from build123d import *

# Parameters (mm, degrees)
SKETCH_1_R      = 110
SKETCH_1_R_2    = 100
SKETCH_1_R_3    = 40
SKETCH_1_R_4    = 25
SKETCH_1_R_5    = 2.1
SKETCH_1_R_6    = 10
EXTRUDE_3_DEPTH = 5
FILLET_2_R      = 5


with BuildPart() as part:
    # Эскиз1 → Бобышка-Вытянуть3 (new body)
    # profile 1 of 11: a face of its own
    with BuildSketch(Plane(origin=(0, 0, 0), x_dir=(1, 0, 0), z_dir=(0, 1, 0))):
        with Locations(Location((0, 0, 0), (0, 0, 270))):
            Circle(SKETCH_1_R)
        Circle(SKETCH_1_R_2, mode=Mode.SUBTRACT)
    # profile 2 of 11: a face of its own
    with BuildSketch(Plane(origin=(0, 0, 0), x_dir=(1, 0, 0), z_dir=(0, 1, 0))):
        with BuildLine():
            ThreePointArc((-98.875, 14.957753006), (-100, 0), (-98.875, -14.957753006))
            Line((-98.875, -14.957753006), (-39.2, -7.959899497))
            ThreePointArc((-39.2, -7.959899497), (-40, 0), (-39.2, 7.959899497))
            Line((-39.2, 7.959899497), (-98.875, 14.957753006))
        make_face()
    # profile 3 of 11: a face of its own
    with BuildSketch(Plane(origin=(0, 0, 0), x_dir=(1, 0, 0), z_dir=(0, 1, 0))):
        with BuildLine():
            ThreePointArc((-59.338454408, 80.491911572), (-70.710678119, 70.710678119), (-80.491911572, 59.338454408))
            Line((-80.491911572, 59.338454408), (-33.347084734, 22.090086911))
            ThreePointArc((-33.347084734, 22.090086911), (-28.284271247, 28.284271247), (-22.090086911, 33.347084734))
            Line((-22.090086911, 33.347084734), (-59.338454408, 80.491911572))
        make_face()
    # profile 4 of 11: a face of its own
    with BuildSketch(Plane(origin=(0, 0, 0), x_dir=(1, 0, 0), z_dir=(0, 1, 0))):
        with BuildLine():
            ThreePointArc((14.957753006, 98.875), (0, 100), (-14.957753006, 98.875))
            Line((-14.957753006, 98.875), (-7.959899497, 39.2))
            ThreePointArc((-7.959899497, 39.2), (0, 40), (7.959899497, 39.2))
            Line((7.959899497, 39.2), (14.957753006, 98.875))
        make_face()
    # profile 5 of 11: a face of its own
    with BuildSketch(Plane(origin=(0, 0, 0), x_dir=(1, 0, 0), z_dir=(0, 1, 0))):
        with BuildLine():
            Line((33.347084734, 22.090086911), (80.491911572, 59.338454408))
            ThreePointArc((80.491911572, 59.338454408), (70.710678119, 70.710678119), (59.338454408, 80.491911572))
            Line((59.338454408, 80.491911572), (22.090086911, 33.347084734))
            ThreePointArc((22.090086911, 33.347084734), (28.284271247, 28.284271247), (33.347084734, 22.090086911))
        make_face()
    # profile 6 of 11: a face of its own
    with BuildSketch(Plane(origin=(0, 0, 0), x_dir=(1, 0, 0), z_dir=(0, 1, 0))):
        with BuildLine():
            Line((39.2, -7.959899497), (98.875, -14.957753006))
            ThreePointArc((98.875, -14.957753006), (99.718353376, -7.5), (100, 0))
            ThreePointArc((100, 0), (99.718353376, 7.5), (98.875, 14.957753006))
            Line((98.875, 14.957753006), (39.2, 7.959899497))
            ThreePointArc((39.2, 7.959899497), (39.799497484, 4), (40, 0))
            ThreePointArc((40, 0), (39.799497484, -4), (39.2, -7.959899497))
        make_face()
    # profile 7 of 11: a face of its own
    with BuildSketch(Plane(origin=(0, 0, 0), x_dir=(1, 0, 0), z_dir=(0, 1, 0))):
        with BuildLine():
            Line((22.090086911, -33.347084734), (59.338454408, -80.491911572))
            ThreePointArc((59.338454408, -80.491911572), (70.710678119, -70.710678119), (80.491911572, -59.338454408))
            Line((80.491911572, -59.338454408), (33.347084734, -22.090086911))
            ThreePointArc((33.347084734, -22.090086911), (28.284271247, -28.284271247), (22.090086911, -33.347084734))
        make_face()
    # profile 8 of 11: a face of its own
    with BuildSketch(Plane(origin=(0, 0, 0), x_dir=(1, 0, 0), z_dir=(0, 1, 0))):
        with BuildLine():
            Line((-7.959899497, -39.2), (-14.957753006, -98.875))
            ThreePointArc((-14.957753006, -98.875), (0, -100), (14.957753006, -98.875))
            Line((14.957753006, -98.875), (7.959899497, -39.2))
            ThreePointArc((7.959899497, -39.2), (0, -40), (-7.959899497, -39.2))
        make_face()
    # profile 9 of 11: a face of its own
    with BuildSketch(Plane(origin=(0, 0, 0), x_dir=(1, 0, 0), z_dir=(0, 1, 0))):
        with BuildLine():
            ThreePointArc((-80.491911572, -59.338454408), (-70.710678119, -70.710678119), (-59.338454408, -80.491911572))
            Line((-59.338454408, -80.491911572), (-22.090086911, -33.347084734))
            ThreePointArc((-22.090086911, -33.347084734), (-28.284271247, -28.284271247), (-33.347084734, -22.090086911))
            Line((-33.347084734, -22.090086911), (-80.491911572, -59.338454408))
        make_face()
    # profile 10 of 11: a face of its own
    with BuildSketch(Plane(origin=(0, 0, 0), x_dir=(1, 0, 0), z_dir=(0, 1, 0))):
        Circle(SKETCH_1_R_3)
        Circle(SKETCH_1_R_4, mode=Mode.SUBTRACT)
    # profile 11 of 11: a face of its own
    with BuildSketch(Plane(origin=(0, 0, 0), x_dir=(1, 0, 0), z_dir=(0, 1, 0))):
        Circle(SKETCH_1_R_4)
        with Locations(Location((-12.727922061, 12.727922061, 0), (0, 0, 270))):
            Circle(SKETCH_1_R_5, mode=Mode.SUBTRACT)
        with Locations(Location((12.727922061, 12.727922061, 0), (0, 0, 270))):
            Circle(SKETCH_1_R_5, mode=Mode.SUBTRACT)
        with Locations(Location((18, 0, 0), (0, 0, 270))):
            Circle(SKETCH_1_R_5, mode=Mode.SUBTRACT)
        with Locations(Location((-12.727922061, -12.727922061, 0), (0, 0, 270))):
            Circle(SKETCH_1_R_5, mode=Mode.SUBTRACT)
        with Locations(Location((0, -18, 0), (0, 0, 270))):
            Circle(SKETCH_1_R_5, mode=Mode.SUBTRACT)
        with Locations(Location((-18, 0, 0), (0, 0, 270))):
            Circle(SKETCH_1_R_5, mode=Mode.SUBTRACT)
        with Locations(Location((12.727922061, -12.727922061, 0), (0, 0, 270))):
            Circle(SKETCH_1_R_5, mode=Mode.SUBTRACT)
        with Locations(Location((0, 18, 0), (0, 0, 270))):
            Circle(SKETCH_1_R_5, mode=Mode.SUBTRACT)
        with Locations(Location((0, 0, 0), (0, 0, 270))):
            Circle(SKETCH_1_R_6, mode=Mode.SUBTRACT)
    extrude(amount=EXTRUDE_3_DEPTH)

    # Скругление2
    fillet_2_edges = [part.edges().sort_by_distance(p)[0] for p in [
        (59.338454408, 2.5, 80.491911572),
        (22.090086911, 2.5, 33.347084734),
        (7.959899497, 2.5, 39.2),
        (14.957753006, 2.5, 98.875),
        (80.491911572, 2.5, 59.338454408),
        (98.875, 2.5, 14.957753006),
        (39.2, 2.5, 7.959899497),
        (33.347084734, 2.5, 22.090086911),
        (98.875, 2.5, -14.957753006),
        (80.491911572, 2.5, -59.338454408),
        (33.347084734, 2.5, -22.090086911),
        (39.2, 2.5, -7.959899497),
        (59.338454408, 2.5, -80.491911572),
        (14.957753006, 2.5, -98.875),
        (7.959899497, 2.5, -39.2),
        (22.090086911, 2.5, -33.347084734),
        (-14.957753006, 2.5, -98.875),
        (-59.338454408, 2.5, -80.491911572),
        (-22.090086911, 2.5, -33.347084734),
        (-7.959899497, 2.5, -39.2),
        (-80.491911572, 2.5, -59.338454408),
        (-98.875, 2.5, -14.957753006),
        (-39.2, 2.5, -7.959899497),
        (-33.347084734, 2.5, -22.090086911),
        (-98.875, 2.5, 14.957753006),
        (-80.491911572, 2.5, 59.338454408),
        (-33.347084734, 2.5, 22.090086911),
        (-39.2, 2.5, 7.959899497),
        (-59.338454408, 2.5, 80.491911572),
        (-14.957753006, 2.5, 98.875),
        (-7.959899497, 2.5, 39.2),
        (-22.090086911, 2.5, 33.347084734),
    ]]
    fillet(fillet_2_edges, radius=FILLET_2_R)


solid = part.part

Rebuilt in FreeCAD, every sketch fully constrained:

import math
import FreeCAD as App
import Part
import Sketcher
from FreeCAD import Vector


def edges_at(feature, points):
    """Names of the edges that pass closest to the given points."""
    edges = feature.Shape.Edges
    near = lambda p: min(range(len(edges)), key=lambda i: edges[i].distToShape(Part.Vertex(*p))[0])
    return sorted({f"Edge{near(p) + 1}" for p in points})

doc = App.newDocument("Part")
body = doc.addObject("PartDesign::Body", "Body")

sketch1 = body.newObject("Sketcher::SketchObject", "Sketch")
sketch1.AttachmentSupport = (doc.getObject("XZ_Plane"), [""])
sketch1.MapMode = "FlatFace"
sketch1.addGeometry([
    Part.Circle(Vector(0, 0, 0), Vector(0, 0, 1), 110),
    Part.ArcOfCircle(Part.Circle(Vector(0, 0, 0), Vector(0, 0, 1), 100), math.radians(-36), math.radians(-9)),
    Part.LineSegment(Vector(98.9, -15, 0), Vector(39.2, -8, 0)),
    Part.ArcOfCircle(Part.Circle(Vector(0, 0, 0), Vector(0, 0, 1), 40), math.radians(-34), math.radians(-11)),
    Part.LineSegment(Vector(33.3, -22.1, 0), Vector(80.5, -59.3, 0)),
    Part.ArcOfCircle(Part.Circle(Vector(0, 0, 0), Vector(0, 0, 1), 100), math.radians(-81), math.radians(-54)),
    Part.LineSegment(Vector(59.3, -80.5, 0), Vector(22.1, -33.3, 0)),
    Part.ArcOfCircle(Part.Circle(Vector(0, 0, 0), Vector(0, 0, 1), 40), math.radians(-79), math.radians(-56)),
    Part.LineSegment(Vector(8, -39.2, 0), Vector(15, -98.9, 0)),
    Part.ArcOfCircle(Part.Circle(Vector(0, 0, 0), Vector(0, 0, 1), 100), math.radians(-126), math.radians(-99)),
    Part.LineSegment(Vector(-15, -98.9, 0), Vector(-8, -39.2, 0)),
    Part.ArcOfCircle(Part.Circle(Vector(0, 0, 0), Vector(0, 0, 1), 40), math.radians(-124), math.radians(-101)),
    Part.LineSegment(Vector(-22.1, -33.3, 0), Vector(-59.3, -80.5, 0)),
    Part.ArcOfCircle(Part.Circle(Vector(0, 0, 0), Vector(0, 0, 1), 100), math.radians(-171), math.radians(-144)),
    Part.LineSegment(Vector(-80.5, -59.3, 0), Vector(-33.3, -22.1, 0)),
    Part.ArcOfCircle(Part.Circle(Vector(0, 0, 0), Vector(0, 0, 1), 40), math.radians(-169), math.radians(-146)),
    Part.LineSegment(Vector(-39.2, -8, 0), Vector(-98.9, -15, 0)),
    Part.ArcOfCircle(Part.Circle(Vector(0, 0, 0), Vector(0, 0, 1), 100), math.radians(144), math.radians(171)),
    Part.LineSegment(Vector(-98.9, 15, 0), Vector(-39.2, 8, 0)),
    Part.ArcOfCircle(Part.Circle(Vector(0, 0, 0), Vector(0, 0, 1), 40), math.radians(146), math.radians(169)),
    Part.LineSegment(Vector(-33.3, 22.1, 0), Vector(-80.5, 59.3, 0)),
    Part.ArcOfCircle(Part.Circle(Vector(0, 0, 0), Vector(0, 0, 1), 100), math.radians(99), math.radians(126)),
    Part.LineSegment(Vector(-59.3, 80.5, 0), Vector(-22.1, 33.3, 0)),
    Part.ArcOfCircle(Part.Circle(Vector(0, 0, 0), Vector(0, 0, 1), 40), math.radians(101), math.radians(124)),
    Part.LineSegment(Vector(-8, 39.2, 0), Vector(-15, 98.9, 0)),
    Part.ArcOfCircle(Part.Circle(Vector(0, 0, 0), Vector(0, 0, 1), 100), math.radians(54), math.radians(81)),
    Part.LineSegment(Vector(15, 98.9, 0), Vector(8, 39.2, 0)),
    Part.ArcOfCircle(Part.Circle(Vector(0, 0, 0), Vector(0, 0, 1), 40), math.radians(56), math.radians(79)),
    Part.LineSegment(Vector(22.1, 33.3, 0), Vector(59.3, 80.5, 0)),
    Part.ArcOfCircle(Part.Circle(Vector(0, 0, 0), Vector(0, 0, 1), 100), math.radians(9), math.radians(36)),
    Part.LineSegment(Vector(80.5, 59.3, 0), Vector(33.3, 22.1, 0)),
    Part.ArcOfCircle(Part.Circle(Vector(0, 0, 0), Vector(0, 0, 1), 40), math.radians(11), math.radians(34)),
    Part.LineSegment(Vector(39.2, 8, 0), Vector(98.9, 15, 0)),
    Part.Circle(Vector(12.7, -12.7, 0), Vector(0, 0, 1), 2.1),
    Part.Circle(Vector(-12.7, 12.7, 0), Vector(0, 0, 1), 2.1),
    Part.Circle(Vector(0, 18, 0), Vector(0, 0, 1), 2.1),
    Part.Circle(Vector(12.7, 12.7, 0), Vector(0, 0, 1), 2.1),
    Part.Circle(Vector(-18, 0, 0), Vector(0, 0, 1), 2.1),
    Part.Circle(Vector(-12.7, -12.7, 0), Vector(0, 0, 1), 2.1),
    Part.Circle(Vector(0, 0, 0), Vector(0, 0, 1), 10),
    Part.Circle(Vector(18, 0, 0), Vector(0, 0, 1), 2.1),
    Part.Circle(Vector(0, -18, 0), Vector(0, 0, 1), 2.1),
], False)
sketch1.addConstraint([
    Sketcher.Constraint("Coincident", 1, 2, 2, 1),
    Sketcher.Constraint("Coincident", 2, 2, 3, 2),
    Sketcher.Constraint("Coincident", 3, 1, 4, 1),
    Sketcher.Constraint("Coincident", 4, 2, 1, 1),
    Sketcher.Constraint("Coincident", 5, 2, 6, 1),
    Sketcher.Constraint("Coincident", 6, 2, 7, 2),
    Sketcher.Constraint("Coincident", 7, 1, 8, 1),
    Sketcher.Constraint("Coincident", 8, 2, 5, 1),
    Sketcher.Constraint("Coincident", 9, 2, 10, 1),
    Sketcher.Constraint("Coincident", 10, 2, 11, 2),
    Sketcher.Constraint("Coincident", 11, 1, 12, 1),
    Sketcher.Constraint("Coincident", 12, 2, 9, 1),
    Sketcher.Constraint("Coincident", 13, 2, 14, 1),
    Sketcher.Constraint("Coincident", 14, 2, 15, 2),
    Sketcher.Constraint("Coincident", 15, 1, 16, 1),
    Sketcher.Constraint("Coincident", 16, 2, 13, 1),
    Sketcher.Constraint("Coincident", 17, 2, 18, 1),
    Sketcher.Constraint("Coincident", 18, 2, 19, 2),
    Sketcher.Constraint("Coincident", 19, 1, 20, 1),
    Sketcher.Constraint("Coincident", 20, 2, 17, 1),
    Sketcher.Constraint("Coincident", 21, 2, 22, 1),
    Sketcher.Constraint("Coincident", 22, 2, 23, 2),
    Sketcher.Constraint("Coincident", 23, 1, 24, 1),
    Sketcher.Constraint("Coincident", 24, 2, 21, 1),
    Sketcher.Constraint("Coincident", 25, 2, 26, 1),
    Sketcher.Constraint("Coincident", 26, 2, 27, 2),
    Sketcher.Constraint("Coincident", 27, 1, 28, 1),
    Sketcher.Constraint("Coincident", 28, 2, 25, 1),
    Sketcher.Constraint("Coincident", 29, 2, 30, 1),
    Sketcher.Constraint("Coincident", 30, 2, 31, 2),
    Sketcher.Constraint("Coincident", 31, 1, 32, 1),
    Sketcher.Constraint("Coincident", 32, 2, 29, 1),
    Sketcher.Constraint("Coincident", 0, 3, -1, 1),
    Sketcher.Constraint("Coincident", 1, 3, -1, 1),
    Sketcher.Constraint("Coincident", 3, 3, -1, 1),
    Sketcher.Constraint("Coincident", 5, 3, -1, 1),
    Sketcher.Constraint("Coincident", 7, 3, -1, 1),
    Sketcher.Constraint("Coincident", 9, 3, -1, 1),
    Sketcher.Constraint("Coincident", 11, 3, -1, 1),
    Sketcher.Constraint("Coincident", 13, 3, -1, 1),
    Sketcher.Constraint("Coincident", 15, 3, -1, 1),
    Sketcher.Constraint("Coincident", 17, 3, -1, 1),
    Sketcher.Constraint("Coincident", 19, 3, -1, 1),
    Sketcher.Constraint("Coincident", 21, 3, -1, 1),
    Sketcher.Constraint("Coincident", 23, 3, -1, 1),
    Sketcher.Constraint("Coincident", 25, 3, -1, 1),
    Sketcher.Constraint("Coincident", 27, 3, -1, 1),
    Sketcher.Constraint("Coincident", 29, 3, -1, 1),
    Sketcher.Constraint("Coincident", 31, 3, -1, 1),
    Sketcher.Constraint("Coincident", 39, 3, -1, 1),
    Sketcher.Constraint("Equal", 1, 5),
    Sketcher.Constraint("Equal", 3, 7),
    Sketcher.Constraint("Equal", 5, 9),
    Sketcher.Constraint("Equal", 7, 11),
    Sketcher.Constraint("Equal", 9, 13),
    Sketcher.Constraint("Equal", 11, 15),
    Sketcher.Constraint("Equal", 13, 17),
    Sketcher.Constraint("Equal", 15, 19),
    Sketcher.Constraint("Equal", 17, 21),
    Sketcher.Constraint("Equal", 19, 23),
    Sketcher.Constraint("Equal", 21, 25),
    Sketcher.Constraint("Equal", 23, 27),
    Sketcher.Constraint("Equal", 25, 29),
    Sketcher.Constraint("Equal", 27, 31),
    Sketcher.Constraint("Equal", 33, 34),
    Sketcher.Constraint("Equal", 34, 35),
    Sketcher.Constraint("Equal", 35, 36),
    Sketcher.Constraint("Equal", 36, 37),
    Sketcher.Constraint("Equal", 37, 38),
    Sketcher.Constraint("Equal", 38, 40),
    Sketcher.Constraint("Equal", 40, 41),
    Sketcher.Constraint("Symmetric", 33, 3, 34, 3, -1, 1),
    Sketcher.Constraint("Symmetric", 36, 3, 38, 3, -1, 1),
    Sketcher.Constraint("Symmetric", 37, 3, 40, 3, -1, 1),
    Sketcher.Constraint("Symmetric", 35, 3, 41, 3, -1, 1),
    Sketcher.Constraint("Symmetric", 34, 3, 36, 3, -2),
    Sketcher.Constraint("PointOnObject", 35, 3, -2),
    Sketcher.Constraint("PointOnObject", 37, 3, -1),
    Sketcher.Constraint("Perpendicular", 2, 10),
    Sketcher.Constraint("Perpendicular", 4, 12),
    Sketcher.Constraint("Perpendicular", 6, 14),
    Sketcher.Constraint("Perpendicular", 8, 16),
    Sketcher.Constraint("Perpendicular", 10, 18),
    Sketcher.Constraint("Perpendicular", 12, 20),
    Sketcher.Constraint("Perpendicular", 14, 22),
    Sketcher.Constraint("Perpendicular", 16, 24),
    Sketcher.Constraint("Perpendicular", 18, 26),
    Sketcher.Constraint("Perpendicular", 20, 28),
    Sketcher.Constraint("Perpendicular", 22, 30),
    Sketcher.Constraint("Perpendicular", 24, 32),
    Sketcher.Constraint("Horizontal", 8, 2, 9, 2),
    Sketcher.Constraint("Horizontal", 7, 1, 10, 2),
    Sketcher.Constraint("Horizontal", 6, 2, 11, 1),
    Sketcher.Constraint("Horizontal", 5, 2, 12, 2),
    Sketcher.Constraint("Horizontal", 4, 2, 13, 2),
    Sketcher.Constraint("Horizontal", 2, 2, 15, 1),
    Sketcher.Constraint("Horizontal", 24, 2, 25, 2),
    Sketcher.Constraint("Horizontal", 22, 2, 27, 1),
    Sketcher.Constraint("Horizontal", 20, 2, 29, 2),
    Sketcher.Constraint("Horizontal", 18, 2, 31, 1),
    Sketcher.Constraint("Vertical", 16, 2, 17, 2),
    Sketcher.Constraint("Vertical", 14, 2, 19, 1),
    Sketcher.Constraint("Vertical", 12, 2, 21, 2),
    Sketcher.Constraint("Vertical", 10, 2, 23, 1),
    Sketcher.Constraint("Equal", 2, 4),
    Sketcher.Constraint("Equal", 4, 6),
    Sketcher.Constraint("Equal", 6, 8),
    Sketcher.Constraint("Diameter", 0, 220.0),
    Sketcher.Constraint("Diameter", 39, 20.0),
    Sketcher.Constraint("Radius", 1, 100.0),
    Sketcher.Constraint("Radius", 3, 40.0),
    Sketcher.Constraint("Diameter", 33, 4.2),
    Sketcher.Constraint("DistanceY", -1, 1, 35, 3, 18.0),
    Sketcher.Constraint("DistanceX", 37, 3, -1, 1, 18.0),
    Sketcher.Constraint("DistanceX", -1, 1, 2, 2, 39.2),
    Sketcher.Constraint("DistanceX", -1, 1, 1, 2, 98.875),
    Sketcher.Constraint("DistanceY", 4, 2, 1, 2, 44.380701),
    Sketcher.Constraint("DistanceY", 1, 2, 33, 3, 2.229831),
    Sketcher.Constraint("DistanceX", 33, 3, 4, 2, 67.76399),
])
pad1 = body.newObject("PartDesign::Pad", "Pad")
pad1.Profile = sketch1
pad1.Length = 5
pad1.Reversed = True
doc.recompute()

fillet = body.newObject("PartDesign::Fillet", "Fillet")
fillet.Base = (pad1, edges_at(pad1, [
    (59.338, 2.5, 80.492),
    (22.09, 2.5, 33.347),
    (7.96, 2.5, 39.2),
    (14.958, 2.5, 98.875),
    (80.492, 2.5, 59.338),
    (98.875, 2.5, 14.958),
    (39.2, 2.5, 7.96),
    (33.347, 2.5, 22.09),
    (98.875, 2.5, -14.958),
    (80.492, 2.5, -59.338),
    (33.347, 2.5, -22.09),
    (39.2, 2.5, -7.96),
    (59.338, 2.5, -80.492),
    (14.958, 2.5, -98.875),
    (7.96, 2.5, -39.2),
    (22.09, 2.5, -33.347),
    (-14.958, 2.5, -98.875),
    (-59.338, 2.5, -80.492),
    (-22.09, 2.5, -33.347),
    (-7.96, 2.5, -39.2),
    (-80.492, 2.5, -59.338),
    (-98.875, 2.5, -14.958),
    (-39.2, 2.5, -7.96),
    (-33.347, 2.5, -22.09),
    (-98.875, 2.5, 14.958),
    (-80.492, 2.5, 59.338),
    (-33.347, 2.5, 22.09),
    (-39.2, 2.5, 7.96),
    (-59.338, 2.5, 80.492),
    (-14.958, 2.5, 98.875),
    (-7.96, 2.5, 39.2),
    (-22.09, 2.5, 33.347),
]))
fillet.Radius = 5

doc.recompute()
